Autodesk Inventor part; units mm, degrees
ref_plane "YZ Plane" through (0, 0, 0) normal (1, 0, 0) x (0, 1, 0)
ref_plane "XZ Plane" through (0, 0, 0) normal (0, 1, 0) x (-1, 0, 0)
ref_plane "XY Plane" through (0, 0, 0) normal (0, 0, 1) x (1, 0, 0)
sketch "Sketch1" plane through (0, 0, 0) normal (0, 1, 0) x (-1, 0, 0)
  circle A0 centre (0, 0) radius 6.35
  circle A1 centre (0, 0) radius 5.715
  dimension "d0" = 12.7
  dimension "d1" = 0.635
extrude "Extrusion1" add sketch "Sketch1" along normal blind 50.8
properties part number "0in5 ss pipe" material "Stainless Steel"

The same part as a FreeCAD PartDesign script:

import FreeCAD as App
import Part
import Sketcher

V = App.Vector
Q = App.Units.Quantity

doc = App.newDocument("Part")
body = doc.addObject("PartDesign::Body", "Body")

# Sketch on XZ plane
sketch1 = doc.addObject("Sketcher::SketchObject", "Sketch")
body.addObject(sketch1)
sketch1.AttachmentSupport = (doc.XZ_Plane, [""])
sketch1.MapMode = "FlatFace"
sketch1.addGeometry(Part.Circle(V(0, 0, 0), V(0, 0, 1), 6.35), False)
sketch1.addGeometry(Part.Circle(V(0, 0, 0), V(0, 0, 1), 5.715), False)
sketch1.addConstraint(Sketcher.Constraint("Coincident", 0, 3, -1, 1))
sketch1.addConstraint(Sketcher.Constraint("Coincident", 1, 3, -1, 1))
sketch1.addConstraint(Sketcher.Constraint("Diameter", 0, Q("0.5 in")))
sketch1.addConstraint(Sketcher.Constraint("Diameter", 1, Q("0.45 in")))
pad1 = doc.addObject("PartDesign::Pad", "Pad")
body.addObject(pad1)
pad1.Profile = sketch1
pad1.Length = Q("2 in")
pad1.Reversed = True

doc.recompute()
